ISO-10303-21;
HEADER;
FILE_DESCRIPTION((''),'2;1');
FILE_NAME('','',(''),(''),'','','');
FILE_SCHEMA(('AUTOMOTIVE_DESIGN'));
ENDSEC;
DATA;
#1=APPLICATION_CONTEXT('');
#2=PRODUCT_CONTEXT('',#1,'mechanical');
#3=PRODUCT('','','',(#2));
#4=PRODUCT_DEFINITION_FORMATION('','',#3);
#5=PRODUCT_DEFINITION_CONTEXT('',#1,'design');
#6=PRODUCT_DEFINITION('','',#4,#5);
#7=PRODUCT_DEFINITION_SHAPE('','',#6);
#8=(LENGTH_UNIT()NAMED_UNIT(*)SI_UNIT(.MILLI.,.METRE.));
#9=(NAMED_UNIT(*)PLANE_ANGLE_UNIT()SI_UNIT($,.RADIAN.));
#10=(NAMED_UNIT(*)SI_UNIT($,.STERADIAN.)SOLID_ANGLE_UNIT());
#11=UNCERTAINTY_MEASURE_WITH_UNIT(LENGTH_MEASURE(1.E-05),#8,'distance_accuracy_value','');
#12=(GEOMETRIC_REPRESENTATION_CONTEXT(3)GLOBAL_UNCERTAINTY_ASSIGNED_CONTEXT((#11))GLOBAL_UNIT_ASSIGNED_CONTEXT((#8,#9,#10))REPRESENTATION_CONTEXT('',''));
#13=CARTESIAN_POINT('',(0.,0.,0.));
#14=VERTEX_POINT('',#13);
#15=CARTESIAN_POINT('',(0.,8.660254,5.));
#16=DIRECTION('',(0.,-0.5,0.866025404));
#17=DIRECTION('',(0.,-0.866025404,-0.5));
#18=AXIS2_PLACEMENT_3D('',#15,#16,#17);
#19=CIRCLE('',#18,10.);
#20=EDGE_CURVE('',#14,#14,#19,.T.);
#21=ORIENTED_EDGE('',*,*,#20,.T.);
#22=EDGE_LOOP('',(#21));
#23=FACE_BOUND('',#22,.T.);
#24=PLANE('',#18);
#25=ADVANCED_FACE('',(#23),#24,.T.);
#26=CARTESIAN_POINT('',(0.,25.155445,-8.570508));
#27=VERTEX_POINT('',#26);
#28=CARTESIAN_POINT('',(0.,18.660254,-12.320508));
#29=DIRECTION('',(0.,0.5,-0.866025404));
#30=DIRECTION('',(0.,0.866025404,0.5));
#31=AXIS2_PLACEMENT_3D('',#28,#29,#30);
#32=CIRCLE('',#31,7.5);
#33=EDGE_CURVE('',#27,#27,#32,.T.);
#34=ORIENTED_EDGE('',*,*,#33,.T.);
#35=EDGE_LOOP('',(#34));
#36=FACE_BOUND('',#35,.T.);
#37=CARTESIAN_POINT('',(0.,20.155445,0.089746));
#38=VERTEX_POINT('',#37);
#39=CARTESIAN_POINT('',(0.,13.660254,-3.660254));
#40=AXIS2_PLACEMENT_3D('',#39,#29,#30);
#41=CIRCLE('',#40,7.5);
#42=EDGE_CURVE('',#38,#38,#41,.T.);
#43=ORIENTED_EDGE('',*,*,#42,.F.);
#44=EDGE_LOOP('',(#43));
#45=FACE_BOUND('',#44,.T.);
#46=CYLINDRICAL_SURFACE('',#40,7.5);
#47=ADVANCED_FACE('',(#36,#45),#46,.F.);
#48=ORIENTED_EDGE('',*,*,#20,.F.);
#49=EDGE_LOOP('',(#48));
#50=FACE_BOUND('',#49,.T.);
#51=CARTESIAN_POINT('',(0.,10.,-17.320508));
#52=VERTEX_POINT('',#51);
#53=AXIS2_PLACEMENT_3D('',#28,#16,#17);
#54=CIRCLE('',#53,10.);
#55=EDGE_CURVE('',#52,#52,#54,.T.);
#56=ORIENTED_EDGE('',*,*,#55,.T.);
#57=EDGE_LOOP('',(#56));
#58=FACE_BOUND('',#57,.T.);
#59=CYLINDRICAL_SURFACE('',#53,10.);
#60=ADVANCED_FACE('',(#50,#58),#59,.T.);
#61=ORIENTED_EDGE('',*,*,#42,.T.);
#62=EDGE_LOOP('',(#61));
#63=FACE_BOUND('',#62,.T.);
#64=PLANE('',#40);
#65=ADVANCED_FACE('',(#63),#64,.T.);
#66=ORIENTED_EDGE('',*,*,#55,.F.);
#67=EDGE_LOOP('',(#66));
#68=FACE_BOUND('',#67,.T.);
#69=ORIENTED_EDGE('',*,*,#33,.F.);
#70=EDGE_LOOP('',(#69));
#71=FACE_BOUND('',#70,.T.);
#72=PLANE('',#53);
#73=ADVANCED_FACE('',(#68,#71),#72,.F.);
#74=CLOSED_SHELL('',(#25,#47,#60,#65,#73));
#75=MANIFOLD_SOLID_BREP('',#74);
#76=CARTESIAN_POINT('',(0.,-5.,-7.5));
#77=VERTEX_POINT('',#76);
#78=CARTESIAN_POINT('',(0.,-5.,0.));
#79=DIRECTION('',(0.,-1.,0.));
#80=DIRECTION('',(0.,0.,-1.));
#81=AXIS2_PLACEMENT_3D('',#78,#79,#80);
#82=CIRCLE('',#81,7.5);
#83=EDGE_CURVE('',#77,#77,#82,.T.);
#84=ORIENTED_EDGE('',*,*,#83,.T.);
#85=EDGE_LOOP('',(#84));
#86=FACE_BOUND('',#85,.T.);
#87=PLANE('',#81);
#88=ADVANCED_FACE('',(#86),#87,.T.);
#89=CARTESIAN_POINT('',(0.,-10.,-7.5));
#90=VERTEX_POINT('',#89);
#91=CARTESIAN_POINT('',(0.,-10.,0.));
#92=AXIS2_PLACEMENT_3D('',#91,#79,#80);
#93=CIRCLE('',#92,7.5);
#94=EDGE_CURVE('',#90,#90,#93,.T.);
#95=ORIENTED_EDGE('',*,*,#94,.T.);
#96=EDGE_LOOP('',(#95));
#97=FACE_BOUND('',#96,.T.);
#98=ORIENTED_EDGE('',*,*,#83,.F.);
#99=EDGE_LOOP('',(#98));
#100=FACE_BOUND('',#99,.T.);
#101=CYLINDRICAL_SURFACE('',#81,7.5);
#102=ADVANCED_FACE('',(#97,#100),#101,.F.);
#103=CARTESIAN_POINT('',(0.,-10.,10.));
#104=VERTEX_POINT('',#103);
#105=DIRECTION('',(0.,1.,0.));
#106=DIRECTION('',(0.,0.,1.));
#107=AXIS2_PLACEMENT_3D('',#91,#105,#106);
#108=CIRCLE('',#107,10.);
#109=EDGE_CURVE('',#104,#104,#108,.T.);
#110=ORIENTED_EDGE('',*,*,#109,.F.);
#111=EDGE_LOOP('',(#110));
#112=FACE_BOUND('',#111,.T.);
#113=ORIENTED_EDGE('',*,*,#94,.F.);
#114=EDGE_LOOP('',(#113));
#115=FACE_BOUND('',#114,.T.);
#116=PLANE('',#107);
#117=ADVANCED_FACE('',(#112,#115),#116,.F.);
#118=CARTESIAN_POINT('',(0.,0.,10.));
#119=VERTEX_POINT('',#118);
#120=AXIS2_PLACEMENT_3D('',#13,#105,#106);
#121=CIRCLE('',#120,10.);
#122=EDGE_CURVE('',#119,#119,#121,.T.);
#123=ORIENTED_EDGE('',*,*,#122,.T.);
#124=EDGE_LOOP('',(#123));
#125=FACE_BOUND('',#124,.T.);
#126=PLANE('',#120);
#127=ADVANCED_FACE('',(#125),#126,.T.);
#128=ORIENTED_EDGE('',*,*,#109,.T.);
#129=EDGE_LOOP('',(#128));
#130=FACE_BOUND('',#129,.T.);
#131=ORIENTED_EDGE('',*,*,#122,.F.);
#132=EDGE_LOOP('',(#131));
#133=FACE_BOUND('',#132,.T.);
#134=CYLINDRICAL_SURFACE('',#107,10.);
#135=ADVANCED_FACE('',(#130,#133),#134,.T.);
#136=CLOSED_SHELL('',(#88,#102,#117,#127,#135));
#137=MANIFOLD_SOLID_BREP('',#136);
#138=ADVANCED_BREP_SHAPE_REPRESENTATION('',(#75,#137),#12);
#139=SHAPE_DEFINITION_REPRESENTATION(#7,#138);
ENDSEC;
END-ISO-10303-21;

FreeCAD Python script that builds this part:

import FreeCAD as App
import Part
import Sketcher

doc = App.newDocument("Part")
body = doc.addObject("PartDesign::Body", "Body")

sketch1 = body.newObject("Sketcher::SketchObject", "Sketch")
sketch1.AttachmentSupport = (doc.getObject("XZ_Plane"), [""])
sketch1.MapMode = "FlatFace"
sketch1.addGeometry(Part.Circle(App.Vector(0, 0, 0), App.Vector(0, 0, 1), 10), False)
sketch1.addConstraint(Sketcher.Constraint("Coincident", 0, 3, -1, 1))
sketch1.addConstraint(Sketcher.Constraint("Diameter", 0, 20.0))
pad1 = body.newObject("PartDesign::Pad", "Pad")
pad1.Profile = sketch1
pad1.Length = 10

sketch2 = body.newObject("Sketcher::SketchObject", "Sketch001")
sketch2.AttachmentSupport = (doc.getObject("XZ_Plane"), [""])
sketch2.MapMode = "FlatFace"
sketch2.AttachmentOffset = App.Placement(App.Vector(0, 0, 10), App.Rotation())
sketch2.addGeometry(Part.Circle(App.Vector(0, 0, 0), App.Vector(0, 0, 1), 8), False)
sketch2.addConstraint(Sketcher.Constraint("Coincident", 0, 3, -1, 1))
sketch2.addConstraint(Sketcher.Constraint("Diameter", 0, 15.0))
pocket1 = body.newObject("PartDesign::Pocket", "Pocket")
pocket1.Profile = sketch2
pocket1.Length = 5
body2 = doc.addObject("PartDesign::Body", "Body001")

sketch3 = body2.newObject("Sketcher::SketchObject", "Sketch002")
sketch3.Placement = App.Placement(App.Vector(0, 0, 0), App.Rotation(App.Vector(1, 0, 0), App.Vector(0, 0.866025404, 0.5), App.Vector(0, -0.5, 0.866025404), "ZXY"))
sketch3.addGeometry(Part.Circle(App.Vector(0, 10, 0), App.Vector(0, 0, 1), 10), False)
sketch3.addConstraint(Sketcher.Constraint("PointOnObject", 0, 3, -2))
sketch3.addConstraint(Sketcher.Constraint("Diameter", 0, 20.0))
sketch3.addConstraint(Sketcher.Constraint("DistanceY", -1, 1, 0, 3, 10.0))
pad2 = body2.newObject("PartDesign::Pad", "Pad001")
pad2.Profile = sketch3
pad2.Length = 20
pad2.Reversed = True

sketch4 = body2.newObject("Sketcher::SketchObject", "Sketch003")
sketch4.Placement = App.Placement(App.Vector(0, 10, -17.320508), App.Rotation(App.Vector(-1, 0, 0), App.Vector(0, 0.866025404, 0.5), App.Vector(0, 0.5, -0.866025404), "ZXY"))
sketch4.addGeometry(Part.Circle(App.Vector(0, 10, 0), App.Vector(0, 0, 1), 8), False)
sketch4.addConstraint(Sketcher.Constraint("PointOnObject", 0, 3, -2))
sketch4.addConstraint(Sketcher.Constraint("Diameter", 0, 15.0))
sketch4.addConstraint(Sketcher.Constraint("DistanceY", -1, 1, 0, 3, 10.0))
pocket2 = body2.newObject("PartDesign::Pocket", "Pocket001")
pocket2.Profile = sketch4
pocket2.Length = 10

doc.recompute()
